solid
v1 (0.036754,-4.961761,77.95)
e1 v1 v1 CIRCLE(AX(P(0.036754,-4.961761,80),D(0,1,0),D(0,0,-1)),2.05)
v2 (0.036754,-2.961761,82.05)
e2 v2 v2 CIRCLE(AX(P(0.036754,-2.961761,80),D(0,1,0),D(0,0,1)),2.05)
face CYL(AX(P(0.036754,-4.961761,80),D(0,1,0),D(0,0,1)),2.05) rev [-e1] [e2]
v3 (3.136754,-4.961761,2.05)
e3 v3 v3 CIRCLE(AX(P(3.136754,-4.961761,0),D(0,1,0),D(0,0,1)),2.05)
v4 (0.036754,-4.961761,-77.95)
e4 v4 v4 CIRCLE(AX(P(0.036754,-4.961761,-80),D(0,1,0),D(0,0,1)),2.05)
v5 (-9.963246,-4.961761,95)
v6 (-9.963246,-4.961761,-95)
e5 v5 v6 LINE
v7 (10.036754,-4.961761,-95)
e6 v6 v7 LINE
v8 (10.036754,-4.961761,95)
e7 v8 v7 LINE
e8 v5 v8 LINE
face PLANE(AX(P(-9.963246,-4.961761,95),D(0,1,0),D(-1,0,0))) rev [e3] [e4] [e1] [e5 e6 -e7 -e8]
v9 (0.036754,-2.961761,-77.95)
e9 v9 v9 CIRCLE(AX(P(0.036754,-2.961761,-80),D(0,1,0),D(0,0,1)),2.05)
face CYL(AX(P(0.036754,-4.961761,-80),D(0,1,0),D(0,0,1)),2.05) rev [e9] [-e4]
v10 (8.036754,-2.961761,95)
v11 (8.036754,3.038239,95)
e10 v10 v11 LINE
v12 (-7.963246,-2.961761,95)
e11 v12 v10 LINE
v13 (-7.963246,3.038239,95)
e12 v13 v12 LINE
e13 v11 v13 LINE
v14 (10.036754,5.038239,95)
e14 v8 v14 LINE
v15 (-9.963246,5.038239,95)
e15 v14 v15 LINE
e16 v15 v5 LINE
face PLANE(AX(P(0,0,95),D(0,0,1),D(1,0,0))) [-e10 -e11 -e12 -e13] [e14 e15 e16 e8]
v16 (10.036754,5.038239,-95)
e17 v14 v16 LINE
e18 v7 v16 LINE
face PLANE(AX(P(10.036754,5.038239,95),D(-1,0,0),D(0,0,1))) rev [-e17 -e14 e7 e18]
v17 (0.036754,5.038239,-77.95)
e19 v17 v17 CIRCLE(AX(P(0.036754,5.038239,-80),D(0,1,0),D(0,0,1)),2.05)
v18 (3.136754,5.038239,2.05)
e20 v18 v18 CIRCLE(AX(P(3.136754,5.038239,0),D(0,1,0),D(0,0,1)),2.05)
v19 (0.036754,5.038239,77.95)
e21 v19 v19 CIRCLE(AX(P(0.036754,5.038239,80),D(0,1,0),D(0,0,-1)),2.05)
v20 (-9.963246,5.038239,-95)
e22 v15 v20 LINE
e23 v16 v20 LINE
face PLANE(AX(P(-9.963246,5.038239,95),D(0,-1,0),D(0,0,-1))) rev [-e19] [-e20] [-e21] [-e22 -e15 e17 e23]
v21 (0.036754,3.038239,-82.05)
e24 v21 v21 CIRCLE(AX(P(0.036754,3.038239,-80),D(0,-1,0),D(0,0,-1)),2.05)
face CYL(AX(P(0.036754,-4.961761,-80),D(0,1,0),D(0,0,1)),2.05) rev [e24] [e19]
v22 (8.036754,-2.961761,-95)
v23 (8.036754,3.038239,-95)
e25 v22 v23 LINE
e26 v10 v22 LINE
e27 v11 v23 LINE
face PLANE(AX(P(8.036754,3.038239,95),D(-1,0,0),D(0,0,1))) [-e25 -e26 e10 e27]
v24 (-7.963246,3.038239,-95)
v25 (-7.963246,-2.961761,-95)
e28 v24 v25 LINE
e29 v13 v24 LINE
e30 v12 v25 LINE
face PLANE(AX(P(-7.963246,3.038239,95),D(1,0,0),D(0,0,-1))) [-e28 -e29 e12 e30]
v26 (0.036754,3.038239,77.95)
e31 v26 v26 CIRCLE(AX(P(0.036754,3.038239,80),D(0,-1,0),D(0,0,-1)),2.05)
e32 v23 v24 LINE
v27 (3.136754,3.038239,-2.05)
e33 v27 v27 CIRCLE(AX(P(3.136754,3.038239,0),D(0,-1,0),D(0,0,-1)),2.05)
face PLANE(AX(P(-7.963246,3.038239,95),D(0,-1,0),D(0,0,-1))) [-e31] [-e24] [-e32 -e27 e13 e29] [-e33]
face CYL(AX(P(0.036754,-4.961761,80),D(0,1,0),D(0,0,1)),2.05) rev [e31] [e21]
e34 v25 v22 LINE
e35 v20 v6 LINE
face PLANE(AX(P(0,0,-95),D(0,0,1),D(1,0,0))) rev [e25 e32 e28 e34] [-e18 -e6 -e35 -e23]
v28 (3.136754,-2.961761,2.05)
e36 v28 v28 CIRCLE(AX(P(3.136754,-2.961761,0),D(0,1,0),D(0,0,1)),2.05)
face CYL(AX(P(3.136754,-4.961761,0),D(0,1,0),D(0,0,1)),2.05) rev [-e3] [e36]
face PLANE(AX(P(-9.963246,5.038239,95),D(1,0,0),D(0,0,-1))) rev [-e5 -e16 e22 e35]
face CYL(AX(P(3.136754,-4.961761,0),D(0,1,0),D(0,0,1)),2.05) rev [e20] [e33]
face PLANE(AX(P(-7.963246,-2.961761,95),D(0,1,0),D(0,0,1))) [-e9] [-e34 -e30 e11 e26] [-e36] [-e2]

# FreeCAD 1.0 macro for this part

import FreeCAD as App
import Part
import Sketcher
from FreeCAD import Vector
Q = App.Units.Quantity


def add_polygon(sketch, points):
    """Adds a closed chain of lines whose ends are joined by coincident constraints."""
    first, n = sketch.GeometryCount, len(points)
    for a, b in zip(points, points[1:] + points[:1]):
        sketch.addGeometry(Part.LineSegment(App.Vector(*a, 0), App.Vector(*b, 0)), False)
    for i in range(n):
        sketch.addConstraint(Sketcher.Constraint("Coincident", first + i, 2, first + (i + 1) % n, 1))

doc = App.newDocument("Part")
body = doc.addObject("PartDesign::Body", "Body")

sketch1 = body.newObject("Sketcher::SketchObject", "Sketch")
sketch1.AttachmentSupport = (doc.getObject("XY_Plane"), [""])
sketch1.MapMode = "FlatFace"
add_polygon(sketch1, [(-10, 5), (-10, -5), (10, -5), (10, 5)])
add_polygon(sketch1, [(8, -3), (-8, -3), (-8, 3), (8, 3)])
sketch1.addConstraint([
    Sketcher.Constraint("Vertical", 0),
    Sketcher.Constraint("Horizontal", 1),
    Sketcher.Constraint("Vertical", 2),
    Sketcher.Constraint("Horizontal", 3),
    Sketcher.Constraint("Horizontal", 4),
    Sketcher.Constraint("Vertical", 5),
    Sketcher.Constraint("Horizontal", 6),
    Sketcher.Constraint("Vertical", 7),
    Sketcher.Constraint("DistanceX", 1, 1, 1, 2, Q("20 mm")),
    Sketcher.Constraint("DistanceX", 4, 2, 4, 1, Q("16 mm")),
    Sketcher.Constraint("DistanceY", 0, 2, 0, 1, Q("10 mm")),
    Sketcher.Constraint("DistanceY", 5, 1, 5, 2, Q("6 mm")),
    Sketcher.Constraint("DistanceX", 0, 2, 4, 2, Q("2 mm")),
    Sketcher.Constraint("DistanceY", 0, 2, 4, 2, Q("2 mm")),
    Sketcher.Constraint("DistanceY", 0, 2, -1, 1, Q("4.961761 mm")),
    Sketcher.Constraint("DistanceX", 0, 2, -1, 1, Q("9.963246 mm")),
])
pad1 = body.newObject("PartDesign::Pad", "Pad")
pad1.Profile = sketch1
pad1.Length = 190
pad1.Midplane = True

sketch2 = body.newObject("Sketcher::SketchObject", "Sketch001")
sketch2.AttachmentSupport = (doc.getObject("XZ_Plane"), [""])
sketch2.MapMode = "FlatFace"
sketch2.AttachmentOffset = App.Placement(Vector(0, 0, -5.038239), App.Rotation())
sketch2.addGeometry([
    Part.Circle(Vector(3.1, 0, 0), Vector(0, 0, 1), 2),
    Part.Circle(Vector(0, -80, 0), Vector(0, 0, 1), 2),
    Part.Circle(Vector(0, 80, 0), Vector(0, 0, 1), 2),
], False)
sketch2.addConstraint([
    Sketcher.Constraint("Equal", 0, 1),
    Sketcher.Constraint("Equal", 1, 2),
    Sketcher.Constraint("Symmetric", 1, 3, 2, 3, -1),
    Sketcher.Constraint("PointOnObject", 0, 3, -1),
    Sketcher.Constraint("Diameter", 0, Q("4.1 mm")),
    Sketcher.Constraint("DistanceY", 1, 3, -1, 1, Q("80 mm")),
    Sketcher.Constraint("DistanceX", 1, 3, 0, 3, Q("3.1 mm")),
    Sketcher.Constraint("DistanceX", -1, 1, 0, 3, Q("3.136754 mm")),
])
pocket1 = body.newObject("PartDesign::Pocket", "Pocket")
pocket1.Profile = sketch2
pocket1.Type = "ThroughAll"
pocket1.Reversed = True

doc.recompute()
